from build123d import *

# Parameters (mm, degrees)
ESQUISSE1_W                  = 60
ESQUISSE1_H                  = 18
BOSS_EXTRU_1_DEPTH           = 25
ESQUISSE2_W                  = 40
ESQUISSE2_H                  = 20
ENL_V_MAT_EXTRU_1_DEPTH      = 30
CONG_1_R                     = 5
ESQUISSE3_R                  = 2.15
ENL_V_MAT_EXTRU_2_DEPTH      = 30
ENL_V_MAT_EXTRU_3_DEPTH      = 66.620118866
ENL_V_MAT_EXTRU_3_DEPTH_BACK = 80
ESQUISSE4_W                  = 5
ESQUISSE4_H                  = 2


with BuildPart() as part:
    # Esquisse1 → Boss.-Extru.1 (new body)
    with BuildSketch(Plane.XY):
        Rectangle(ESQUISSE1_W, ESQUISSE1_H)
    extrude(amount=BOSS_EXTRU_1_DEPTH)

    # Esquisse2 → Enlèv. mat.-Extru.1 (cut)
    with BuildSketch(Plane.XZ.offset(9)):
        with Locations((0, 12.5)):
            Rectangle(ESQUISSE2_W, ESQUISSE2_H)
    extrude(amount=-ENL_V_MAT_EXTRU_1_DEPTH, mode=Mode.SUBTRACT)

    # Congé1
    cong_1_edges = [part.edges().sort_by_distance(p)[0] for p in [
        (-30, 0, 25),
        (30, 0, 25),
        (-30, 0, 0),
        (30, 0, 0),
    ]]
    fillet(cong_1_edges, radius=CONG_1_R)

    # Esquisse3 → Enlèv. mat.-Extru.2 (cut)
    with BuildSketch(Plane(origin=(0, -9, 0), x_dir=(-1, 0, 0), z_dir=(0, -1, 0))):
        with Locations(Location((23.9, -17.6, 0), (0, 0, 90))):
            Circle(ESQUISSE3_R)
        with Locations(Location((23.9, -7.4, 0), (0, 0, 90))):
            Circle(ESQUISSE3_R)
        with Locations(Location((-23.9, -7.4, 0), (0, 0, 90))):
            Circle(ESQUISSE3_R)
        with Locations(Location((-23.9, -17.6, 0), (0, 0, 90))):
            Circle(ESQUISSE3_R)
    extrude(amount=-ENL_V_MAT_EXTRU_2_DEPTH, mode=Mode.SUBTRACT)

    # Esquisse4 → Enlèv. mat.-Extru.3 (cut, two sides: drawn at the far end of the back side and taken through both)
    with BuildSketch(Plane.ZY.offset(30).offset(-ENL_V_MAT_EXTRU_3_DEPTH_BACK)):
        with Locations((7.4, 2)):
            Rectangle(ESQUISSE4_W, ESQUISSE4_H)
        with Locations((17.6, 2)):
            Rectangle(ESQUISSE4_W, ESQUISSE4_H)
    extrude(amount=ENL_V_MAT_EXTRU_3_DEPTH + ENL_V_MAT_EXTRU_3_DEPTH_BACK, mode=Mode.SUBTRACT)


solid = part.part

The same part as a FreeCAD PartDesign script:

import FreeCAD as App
import Part
import Sketcher
from FreeCAD import Vector


def edges_at(feature, points):
    """Names of the edges that pass closest to the given points."""
    edges = feature.Shape.Edges
    near = lambda p: min(range(len(edges)), key=lambda i: edges[i].distToShape(Part.Vertex(*p))[0])
    return sorted({f"Edge{near(p) + 1}" for p in points})


def add_polygon(sketch, points):
    """Adds a closed chain of lines whose ends are joined by coincident constraints."""
    first, n = sketch.GeometryCount, len(points)
    for a, b in zip(points, points[1:] + points[:1]):
        sketch.addGeometry(Part.LineSegment(App.Vector(*a, 0), App.Vector(*b, 0)), False)
    for i in range(n):
        sketch.addConstraint(Sketcher.Constraint("Coincident", first + i, 2, first + (i + 1) % n, 1))

doc = App.newDocument("Part")
body = doc.addObject("PartDesign::Body", "Body")

# Sketch on XY plane
sketch1 = body.newObject("Sketcher::SketchObject", "Sketch")
sketch1.AttachmentSupport = (doc.getObject("XY_Plane"), [""])
sketch1.MapMode = "FlatFace"
add_polygon(sketch1, [(-30, 9), (-30, -9), (30, -9), (30, 9)])  # lines 0-3
sketch1.addConstraint(Sketcher.Constraint("Vertical", 0))
sketch1.addConstraint(Sketcher.Constraint("Horizontal", 1))
sketch1.addConstraint(Sketcher.Constraint("Vertical", 2))
sketch1.addConstraint(Sketcher.Constraint("Horizontal", 3))
sketch1.addConstraint(Sketcher.Constraint("Symmetric", 0, 2, 2, 2, -1, 1))
sketch1.addConstraint(Sketcher.Constraint("DistanceX", 1, 1, 1, 2, 60.0))
sketch1.addConstraint(Sketcher.Constraint("DistanceY", 0, 2, 0, 1, 18.0))
pad1 = body.newObject("PartDesign::Pad", "Pad")
pad1.Profile = sketch1
pad1.Length = 25

# Sketch on XZ plane
sketch2 = body.newObject("Sketcher::SketchObject", "Sketch001")
sketch2.AttachmentSupport = (doc.getObject("XZ_Plane"), [""])
sketch2.MapMode = "FlatFace"
sketch2.AttachmentOffset = App.Placement(Vector(0, 0, 9), App.Rotation())
add_polygon(sketch2, [(-20, 22), (-20, 2), (20, 2), (20, 22)])  # lines 0-3
sketch2.addConstraint(Sketcher.Constraint("Vertical", 0))
sketch2.addConstraint(Sketcher.Constraint("Horizontal", 1))
sketch2.addConstraint(Sketcher.Constraint("Vertical", 2))
sketch2.addConstraint(Sketcher.Constraint("Horizontal", 3))
sketch2.addConstraint(Sketcher.Constraint("DistanceX", 1, 1, 1, 2, 40.0))
sketch2.addConstraint(Sketcher.Constraint("DistanceY", 0, 2, 0, 1, 20.0))
sketch2.addConstraint(Sketcher.Constraint("DistanceX", 0, 2, -1, 1, 20.0))
sketch2.addConstraint(Sketcher.Constraint("DistanceY", -1, 1, 0, 2, 2.5))
pocket1 = body.newObject("PartDesign::Pocket", "Pocket")
pocket1.Profile = sketch2
pocket1.Length = 30
doc.recompute()

fillet = body.newObject("PartDesign::Fillet", "Fillet")
fillet.Base = (pocket1, edges_at(pocket1, [
    (-30, 0, 25),
    (30, 0, 25),
    (-30, 0, 0),
    (30, 0, 0),
]))
fillet.Radius = 5

# Sketch on XZ plane
sketch3 = body.newObject("Sketcher::SketchObject", "Sketch002")
sketch3.AttachmentSupport = (doc.getObject("XZ_Plane"), [""])
sketch3.MapMode = "FlatFace"
sketch3.AttachmentOffset = App.Placement(Vector(0, 0, 9), App.Rotation())
sketch3.addGeometry(Part.Circle(Vector(-23.9, 17.6, 0), Vector(0, 0, 1), 2.1), False)
sketch3.addGeometry(Part.Circle(Vector(-23.9, 7.4, 0), Vector(0, 0, 1), 2.1), False)
sketch3.addGeometry(Part.Circle(Vector(23.9, 7.4, 0), Vector(0, 0, 1), 2.1), False)
sketch3.addGeometry(Part.Circle(Vector(23.9, 17.6, 0), Vector(0, 0, 1), 2.1), False)
sketch3.addConstraint(Sketcher.Constraint("Equal", 0, 1))
sketch3.addConstraint(Sketcher.Constraint("Equal", 1, 2))
sketch3.addConstraint(Sketcher.Constraint("Equal", 2, 3))
sketch3.addConstraint(Sketcher.Constraint("Symmetric", 1, 3, 2, 3, -2))
sketch3.addConstraint(Sketcher.Constraint("Symmetric", 0, 3, 3, 3, -2))
sketch3.addConstraint(Sketcher.Constraint("Vertical", 0, 3, 1, 3))
sketch3.addConstraint(Sketcher.Constraint("Diameter", 0, 4.3))
sketch3.addConstraint(Sketcher.Constraint("DistanceX", 0, 3, -1, 1, 23.9))
sketch3.addConstraint(Sketcher.Constraint("DistanceY", -1, 1, 0, 3, 17.6))
sketch3.addConstraint(Sketcher.Constraint("DistanceY", -1, 1, 1, 3, 7.4))
pocket2 = body.newObject("PartDesign::Pocket", "Pocket001")
pocket2.Profile = sketch3
pocket2.Length = 30

# Sketch on YZ plane
sketch4 = body.newObject("Sketcher::SketchObject", "Sketch003")
sketch4.AttachmentSupport = (doc.getObject("YZ_Plane"), [""])
sketch4.MapMode = "FlatFace"
sketch4.AttachmentOffset = App.Placement(Vector(0, 0, -30), App.Rotation())
add_polygon(sketch4, [(3, 4.9), (1, 4.9), (1, 9.9), (3, 9.9)])  # lines 0-3
add_polygon(sketch4, [(3, 15.1), (1, 15.1), (1, 20.1), (3, 20.1)])  # lines 4-7
sketch4.addConstraint(Sketcher.Constraint("Horizontal", 0))
sketch4.addConstraint(Sketcher.Constraint("Vertical", 1))
sketch4.addConstraint(Sketcher.Constraint("Horizontal", 2))
sketch4.addConstraint(Sketcher.Constraint("Vertical", 3))
sketch4.addConstraint(Sketcher.Constraint("Horizontal", 4))
sketch4.addConstraint(Sketcher.Constraint("Vertical", 5))
sketch4.addConstraint(Sketcher.Constraint("Horizontal", 6))
sketch4.addConstraint(Sketcher.Constraint("Vertical", 7))
sketch4.addConstraint(Sketcher.Constraint("Vertical", 1, 2, 4, 2))
sketch4.addConstraint(Sketcher.Constraint("Vertical", 3, 2, 6, 2))
sketch4.addConstraint(Sketcher.Constraint("Equal", 3, 5))
sketch4.addConstraint(Sketcher.Constraint("DistanceX", 0, 2, 0, 1, 2.0))
sketch4.addConstraint(Sketcher.Constraint("DistanceY", 1, 1, 1, 2, 5.0))
sketch4.addConstraint(Sketcher.Constraint("DistanceX", -1, 1, 0, 2, 1.0))
sketch4.addConstraint(Sketcher.Constraint("DistanceY", -1, 1, 0, 2, 4.9))
sketch4.addConstraint(Sketcher.Constraint("DistanceY", -1, 1, 4, 2, 15.1))
pocket3 = body.newObject("PartDesign::Pocket", "Pocket002")
pocket3.Profile = sketch4
pocket3.Type = "ThroughAll"
pocket3.Midplane = True

doc.recompute()
